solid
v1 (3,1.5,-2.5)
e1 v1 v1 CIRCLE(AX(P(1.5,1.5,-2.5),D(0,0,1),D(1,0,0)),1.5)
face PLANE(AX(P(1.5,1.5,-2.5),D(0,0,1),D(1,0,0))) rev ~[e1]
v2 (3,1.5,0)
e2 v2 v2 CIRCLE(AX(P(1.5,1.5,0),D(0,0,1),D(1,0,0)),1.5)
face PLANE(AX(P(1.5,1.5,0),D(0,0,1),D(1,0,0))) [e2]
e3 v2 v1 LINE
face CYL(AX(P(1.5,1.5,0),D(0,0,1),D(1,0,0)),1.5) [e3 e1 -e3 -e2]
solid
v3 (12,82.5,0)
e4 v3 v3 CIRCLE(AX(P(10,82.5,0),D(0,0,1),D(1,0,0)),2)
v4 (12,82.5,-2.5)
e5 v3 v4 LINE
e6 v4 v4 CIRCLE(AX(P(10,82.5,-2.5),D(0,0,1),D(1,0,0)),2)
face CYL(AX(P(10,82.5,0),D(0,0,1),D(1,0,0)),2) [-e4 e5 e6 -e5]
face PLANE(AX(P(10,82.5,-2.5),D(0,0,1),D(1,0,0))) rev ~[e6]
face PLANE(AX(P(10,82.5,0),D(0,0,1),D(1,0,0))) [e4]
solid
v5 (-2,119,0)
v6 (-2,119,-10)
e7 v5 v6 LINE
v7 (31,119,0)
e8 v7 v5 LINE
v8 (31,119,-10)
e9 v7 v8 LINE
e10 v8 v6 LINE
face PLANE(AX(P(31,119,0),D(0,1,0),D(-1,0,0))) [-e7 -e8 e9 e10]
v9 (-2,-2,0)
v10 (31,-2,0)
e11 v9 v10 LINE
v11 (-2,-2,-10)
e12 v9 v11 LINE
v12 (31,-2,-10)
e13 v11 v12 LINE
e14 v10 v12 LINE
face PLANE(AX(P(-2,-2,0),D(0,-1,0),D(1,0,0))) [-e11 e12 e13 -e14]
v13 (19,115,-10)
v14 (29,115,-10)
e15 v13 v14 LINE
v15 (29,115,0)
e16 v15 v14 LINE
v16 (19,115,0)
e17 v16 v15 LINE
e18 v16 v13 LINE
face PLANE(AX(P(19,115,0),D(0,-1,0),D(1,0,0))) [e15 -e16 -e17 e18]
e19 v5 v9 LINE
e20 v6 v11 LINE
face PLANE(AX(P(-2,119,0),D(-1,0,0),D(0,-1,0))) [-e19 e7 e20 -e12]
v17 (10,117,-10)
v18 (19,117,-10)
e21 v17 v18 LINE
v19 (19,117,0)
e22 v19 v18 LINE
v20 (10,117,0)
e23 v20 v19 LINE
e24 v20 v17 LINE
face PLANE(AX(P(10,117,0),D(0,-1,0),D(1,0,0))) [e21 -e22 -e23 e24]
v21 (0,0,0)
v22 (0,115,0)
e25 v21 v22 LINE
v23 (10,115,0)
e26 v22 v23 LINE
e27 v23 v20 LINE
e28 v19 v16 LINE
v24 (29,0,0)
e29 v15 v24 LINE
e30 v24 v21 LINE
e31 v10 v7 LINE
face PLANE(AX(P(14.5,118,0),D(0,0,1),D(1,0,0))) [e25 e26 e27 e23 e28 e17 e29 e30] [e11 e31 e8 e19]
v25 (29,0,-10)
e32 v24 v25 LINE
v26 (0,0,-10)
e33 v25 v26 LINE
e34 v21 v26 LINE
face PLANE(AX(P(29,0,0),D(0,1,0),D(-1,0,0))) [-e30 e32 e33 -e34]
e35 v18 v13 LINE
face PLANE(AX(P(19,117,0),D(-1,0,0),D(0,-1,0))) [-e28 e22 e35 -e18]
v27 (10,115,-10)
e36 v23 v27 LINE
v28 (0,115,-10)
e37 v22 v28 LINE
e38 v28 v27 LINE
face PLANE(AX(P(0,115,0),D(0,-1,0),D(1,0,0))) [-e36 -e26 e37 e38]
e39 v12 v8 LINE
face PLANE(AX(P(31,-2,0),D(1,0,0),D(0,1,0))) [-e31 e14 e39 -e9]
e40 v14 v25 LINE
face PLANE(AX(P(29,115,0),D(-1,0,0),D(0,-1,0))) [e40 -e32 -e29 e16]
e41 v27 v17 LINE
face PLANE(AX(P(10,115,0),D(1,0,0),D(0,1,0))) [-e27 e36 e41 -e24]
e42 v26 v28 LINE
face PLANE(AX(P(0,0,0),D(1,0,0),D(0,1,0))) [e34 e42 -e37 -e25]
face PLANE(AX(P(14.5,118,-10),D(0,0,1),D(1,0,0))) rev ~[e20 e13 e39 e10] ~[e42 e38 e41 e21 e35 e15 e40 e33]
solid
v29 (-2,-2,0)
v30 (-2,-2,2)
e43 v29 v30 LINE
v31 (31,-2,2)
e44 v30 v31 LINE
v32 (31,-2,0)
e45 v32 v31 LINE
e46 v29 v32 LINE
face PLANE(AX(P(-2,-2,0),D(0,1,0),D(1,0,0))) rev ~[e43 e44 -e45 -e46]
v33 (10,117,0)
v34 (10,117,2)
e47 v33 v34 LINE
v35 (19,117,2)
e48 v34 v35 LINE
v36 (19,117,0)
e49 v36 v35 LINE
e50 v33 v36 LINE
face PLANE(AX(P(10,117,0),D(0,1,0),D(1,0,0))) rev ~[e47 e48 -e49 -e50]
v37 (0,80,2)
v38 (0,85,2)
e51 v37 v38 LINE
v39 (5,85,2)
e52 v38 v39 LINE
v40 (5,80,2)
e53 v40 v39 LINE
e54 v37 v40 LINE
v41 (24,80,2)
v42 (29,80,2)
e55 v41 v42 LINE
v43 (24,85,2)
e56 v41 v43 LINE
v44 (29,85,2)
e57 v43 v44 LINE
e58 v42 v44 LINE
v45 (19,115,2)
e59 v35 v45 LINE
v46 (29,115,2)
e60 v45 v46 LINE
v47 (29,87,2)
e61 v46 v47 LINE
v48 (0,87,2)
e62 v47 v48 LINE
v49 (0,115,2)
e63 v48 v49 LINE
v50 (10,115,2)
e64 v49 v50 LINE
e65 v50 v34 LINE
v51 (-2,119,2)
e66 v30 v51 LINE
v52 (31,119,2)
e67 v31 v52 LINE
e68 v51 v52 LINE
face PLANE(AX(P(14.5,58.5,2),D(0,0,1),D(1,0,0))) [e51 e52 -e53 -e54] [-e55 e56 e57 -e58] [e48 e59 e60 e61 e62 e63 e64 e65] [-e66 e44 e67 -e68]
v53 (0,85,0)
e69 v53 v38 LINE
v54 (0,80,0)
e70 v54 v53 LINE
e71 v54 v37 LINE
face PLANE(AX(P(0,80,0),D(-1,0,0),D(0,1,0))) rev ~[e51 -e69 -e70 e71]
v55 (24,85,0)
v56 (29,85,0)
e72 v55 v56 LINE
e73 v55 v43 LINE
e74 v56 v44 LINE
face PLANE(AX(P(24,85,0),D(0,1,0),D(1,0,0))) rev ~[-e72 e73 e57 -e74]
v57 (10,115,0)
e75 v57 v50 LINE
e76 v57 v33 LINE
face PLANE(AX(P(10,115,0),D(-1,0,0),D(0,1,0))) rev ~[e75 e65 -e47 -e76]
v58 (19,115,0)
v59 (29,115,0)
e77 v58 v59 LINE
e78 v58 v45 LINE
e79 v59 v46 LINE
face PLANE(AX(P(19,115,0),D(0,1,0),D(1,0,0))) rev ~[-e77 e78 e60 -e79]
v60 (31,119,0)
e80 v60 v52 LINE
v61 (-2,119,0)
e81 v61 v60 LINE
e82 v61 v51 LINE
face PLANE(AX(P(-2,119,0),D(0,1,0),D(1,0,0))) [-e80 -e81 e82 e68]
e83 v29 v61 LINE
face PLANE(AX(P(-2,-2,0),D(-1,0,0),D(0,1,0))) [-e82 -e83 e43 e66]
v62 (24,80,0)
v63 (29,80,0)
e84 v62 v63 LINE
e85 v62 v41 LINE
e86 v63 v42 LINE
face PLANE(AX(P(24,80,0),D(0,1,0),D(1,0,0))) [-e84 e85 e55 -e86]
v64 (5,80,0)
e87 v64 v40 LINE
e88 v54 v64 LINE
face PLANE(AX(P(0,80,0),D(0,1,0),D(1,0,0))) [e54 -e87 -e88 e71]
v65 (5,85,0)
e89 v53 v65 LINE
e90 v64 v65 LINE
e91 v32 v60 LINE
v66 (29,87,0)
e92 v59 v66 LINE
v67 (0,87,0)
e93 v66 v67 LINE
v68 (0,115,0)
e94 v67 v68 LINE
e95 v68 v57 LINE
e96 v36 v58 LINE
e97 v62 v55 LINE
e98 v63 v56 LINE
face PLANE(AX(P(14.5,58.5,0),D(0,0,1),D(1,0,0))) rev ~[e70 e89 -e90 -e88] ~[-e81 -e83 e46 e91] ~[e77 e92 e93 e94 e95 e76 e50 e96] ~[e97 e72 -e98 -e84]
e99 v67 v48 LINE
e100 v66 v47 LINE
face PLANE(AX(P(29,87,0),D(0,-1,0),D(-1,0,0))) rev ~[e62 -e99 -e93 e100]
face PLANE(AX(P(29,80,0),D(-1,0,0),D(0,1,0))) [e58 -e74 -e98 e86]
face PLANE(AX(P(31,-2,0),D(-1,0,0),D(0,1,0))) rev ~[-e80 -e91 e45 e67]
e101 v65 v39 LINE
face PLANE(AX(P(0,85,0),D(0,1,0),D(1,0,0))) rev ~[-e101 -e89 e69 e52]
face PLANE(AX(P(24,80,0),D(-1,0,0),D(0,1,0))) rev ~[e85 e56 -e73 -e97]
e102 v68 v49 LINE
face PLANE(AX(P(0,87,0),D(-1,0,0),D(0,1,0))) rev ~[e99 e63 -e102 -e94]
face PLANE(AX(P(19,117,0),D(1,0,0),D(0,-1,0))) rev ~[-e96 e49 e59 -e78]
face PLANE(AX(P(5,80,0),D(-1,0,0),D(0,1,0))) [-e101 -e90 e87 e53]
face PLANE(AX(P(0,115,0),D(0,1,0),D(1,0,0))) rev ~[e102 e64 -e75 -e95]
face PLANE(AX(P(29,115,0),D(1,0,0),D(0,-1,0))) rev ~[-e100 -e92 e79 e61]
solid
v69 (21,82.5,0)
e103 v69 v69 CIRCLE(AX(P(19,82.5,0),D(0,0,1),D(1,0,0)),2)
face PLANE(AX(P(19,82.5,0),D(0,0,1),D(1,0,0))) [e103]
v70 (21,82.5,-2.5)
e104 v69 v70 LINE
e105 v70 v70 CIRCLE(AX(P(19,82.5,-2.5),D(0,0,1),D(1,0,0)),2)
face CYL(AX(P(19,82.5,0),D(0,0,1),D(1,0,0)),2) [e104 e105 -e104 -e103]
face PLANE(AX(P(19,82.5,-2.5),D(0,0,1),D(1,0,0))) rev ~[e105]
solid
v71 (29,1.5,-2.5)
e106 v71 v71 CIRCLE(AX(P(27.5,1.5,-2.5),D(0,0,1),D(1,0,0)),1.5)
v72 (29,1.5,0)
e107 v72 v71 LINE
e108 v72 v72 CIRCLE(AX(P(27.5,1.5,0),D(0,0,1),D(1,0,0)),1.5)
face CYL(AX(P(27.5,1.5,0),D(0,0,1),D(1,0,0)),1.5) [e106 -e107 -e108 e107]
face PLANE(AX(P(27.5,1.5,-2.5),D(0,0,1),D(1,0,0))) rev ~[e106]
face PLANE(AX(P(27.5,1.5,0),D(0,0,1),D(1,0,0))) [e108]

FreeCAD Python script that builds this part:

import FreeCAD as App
import Part
import Sketcher

V = App.Vector


def add_polygon(sketch, points):
    """Adds a closed chain of lines whose ends are joined by coincident constraints."""
    first, n = sketch.GeometryCount, len(points)
    for a, b in zip(points, points[1:] + points[:1]):
        sketch.addGeometry(Part.LineSegment(App.Vector(*a, 0), App.Vector(*b, 0)), False)
    for i in range(n):
        sketch.addConstraint(Sketcher.Constraint("Coincident", first + i, 2, first + (i + 1) % n, 1))

doc = App.newDocument("Part")
body = doc.addObject("PartDesign::Body", "Body")

# Sketch on XY plane
sketch1 = doc.addObject("Sketcher::SketchObject", "Sketch")
body.addObject(sketch1)
sketch1.AttachmentSupport = (doc.XY_Plane, [""])
sketch1.MapMode = "FlatFace"
add_polygon(sketch1, [(-2, 119), (-2, -2), (31, -2), (31, 119)])  # lines 0-3
add_polygon(sketch1, [(10, 117), (19, 117), (19, 115), (29, 115), (29, 0), (0, 0), (0, 115), (10, 115)])  # lines 4-11
sketch1.addConstraint(Sketcher.Constraint("Vertical", 0))
sketch1.addConstraint(Sketcher.Constraint("Horizontal", 1))
sketch1.addConstraint(Sketcher.Constraint("Vertical", 2))
sketch1.addConstraint(Sketcher.Constraint("Horizontal", 3))
sketch1.addConstraint(Sketcher.Constraint("Horizontal", 4))
sketch1.addConstraint(Sketcher.Constraint("Vertical", 5))
sketch1.addConstraint(Sketcher.Constraint("Horizontal", 6))
sketch1.addConstraint(Sketcher.Constraint("Vertical", 7))
sketch1.addConstraint(Sketcher.Constraint("Horizontal", 8))
sketch1.addConstraint(Sketcher.Constraint("Vertical", 9))
sketch1.addConstraint(Sketcher.Constraint("Horizontal", 10))
sketch1.addConstraint(Sketcher.Constraint("Vertical", 11))
sketch1.addConstraint(Sketcher.Constraint("Coincident", 8, 2, -1, 1))
sketch1.addConstraint(Sketcher.Constraint("Horizontal", 6, 2, 9, 2))
sketch1.addConstraint(Sketcher.Constraint("Equal", 6, 10))
sketch1.addConstraint(Sketcher.Constraint("DistanceX", 1, 1, 1, 2, 33.0))
sketch1.addConstraint(Sketcher.Constraint("DistanceX", 4, 1, 4, 2, 9.0))
sketch1.addConstraint(Sketcher.Constraint("DistanceX", 6, 1, 6, 2, 10.0))
sketch1.addConstraint(Sketcher.Constraint("DistanceY", 0, 2, 0, 1, 121.0))
sketch1.addConstraint(Sketcher.Constraint("DistanceY", 5, 2, 5, 1, 2.0))
sketch1.addConstraint(Sketcher.Constraint("DistanceY", 7, 2, 7, 1, 115.0))
sketch1.addConstraint(Sketcher.Constraint("DistanceX", 0, 2, -1, 1, 2.0))
sketch1.addConstraint(Sketcher.Constraint("DistanceY", 0, 2, -1, 1, 2.0))
pad1 = doc.addObject("PartDesign::Pad", "Pad")
body.addObject(pad1)
pad1.Profile = sketch1
pad1.Length = 10
pad1.Reversed = True
body2 = doc.addObject("PartDesign::Body", "Body001")

# Sketch on XY plane
sketch2 = doc.addObject("Sketcher::SketchObject", "Sketch001")
body2.addObject(sketch2)
sketch2.AttachmentSupport = (doc.getObject("XY_Plane001"), [""])
sketch2.MapMode = "FlatFace"
sketch2.addGeometry(Part.Circle(V(1.5, 1.5, 0), V(0, 0, 1), 1.5), False)
sketch2.addConstraint(Sketcher.Constraint("Diameter", 0, 3.0))
sketch2.addConstraint(Sketcher.Constraint("DistanceX", -1, 1, 0, 3, 1.5))
sketch2.addConstraint(Sketcher.Constraint("DistanceY", -1, 1, 0, 3, 1.5))
pad2 = doc.addObject("PartDesign::Pad", "Pad001")
body2.addObject(pad2)
pad2.Profile = sketch2
pad2.Length = 2.5
pad2.Reversed = True
body3 = doc.addObject("PartDesign::Body", "Body002")

# Sketch on XY plane
sketch3 = doc.addObject("Sketcher::SketchObject", "Sketch002")
body3.addObject(sketch3)
sketch3.AttachmentSupport = (doc.getObject("XY_Plane002"), [""])
sketch3.MapMode = "FlatFace"
sketch3.addGeometry(Part.Circle(V(27.5, 1.5, 0), V(0, 0, 1), 1.5), False)
sketch3.addConstraint(Sketcher.Constraint("Diameter", 0, 3.0))
sketch3.addConstraint(Sketcher.Constraint("DistanceX", -1, 1, 0, 3, 27.5))
sketch3.addConstraint(Sketcher.Constraint("DistanceY", -1, 1, 0, 3, 1.5))
pad3 = doc.addObject("PartDesign::Pad", "Pad002")
body3.addObject(pad3)
pad3.Profile = sketch3
pad3.Length = 2.5
pad3.Reversed = True
body4 = doc.addObject("PartDesign::Body", "Body003")

# Sketch on XY plane
sketch4 = doc.addObject("Sketcher::SketchObject", "Sketch003")
body4.addObject(sketch4)
sketch4.AttachmentSupport = (doc.getObject("XY_Plane003"), [""])
sketch4.MapMode = "FlatFace"
sketch4.addGeometry(Part.Circle(V(10, 82.5, 0), V(0, 0, 1), 2), False)
sketch4.addConstraint(Sketcher.Constraint("Diameter", 0, 4.0))
sketch4.addConstraint(Sketcher.Constraint("DistanceX", -1, 1, 0, 3, 10.0))
sketch4.addConstraint(Sketcher.Constraint("DistanceY", -1, 1, 0, 3, 82.5))
pad4 = doc.addObject("PartDesign::Pad", "Pad003")
body4.addObject(pad4)
pad4.Profile = sketch4
pad4.Length = 2.5
pad4.Reversed = True
body5 = doc.addObject("PartDesign::Body", "Body004")

# Sketch on XY plane
sketch5 = doc.addObject("Sketcher::SketchObject", "Sketch004")
body5.addObject(sketch5)
sketch5.AttachmentSupport = (doc.getObject("XY_Plane004"), [""])
sketch5.MapMode = "FlatFace"
sketch5.addGeometry(Part.Circle(V(19, 82.5, 0), V(0, 0, 1), 2), False)
sketch5.addConstraint(Sketcher.Constraint("Diameter", 0, 4.0))
sketch5.addConstraint(Sketcher.Constraint("DistanceX", -1, 1, 0, 3, 19.0))
sketch5.addConstraint(Sketcher.Constraint("DistanceY", -1, 1, 0, 3, 82.5))
pad5 = doc.addObject("PartDesign::Pad", "Pad004")
body5.addObject(pad5)
pad5.Profile = sketch5
pad5.Length = 2.5
pad5.Reversed = True
body6 = doc.addObject("PartDesign::Body", "Body005")

# Sketch on XY plane
sketch6 = doc.addObject("Sketcher::SketchObject", "Sketch005")
body6.addObject(sketch6)
sketch6.AttachmentSupport = (doc.getObject("XY_Plane005"), [""])
sketch6.MapMode = "FlatFace"
add_polygon(sketch6, [(-2, 119), (-2, -2), (31, -2), (31, 119)])  # lines 0-3
add_polygon(sketch6, [(5, 80), (0, 80), (0, 85), (5, 85)])  # lines 4-7
add_polygon(sketch6, [(29, 80), (24, 80), (24, 85), (29, 85)])  # lines 8-11
add_polygon(sketch6, [(0, 87), (0, 115), (10, 115), (10, 117), (19, 117), (19, 115), (29, 115), (29, 87)])  # lines 12-19
sketch6.addConstraint(Sketcher.Constraint("Vertical", 0))
sketch6.addConstraint(Sketcher.Constraint("Horizontal", 1))
sketch6.addConstraint(Sketcher.Constraint("Vertical", 2))
sketch6.addConstraint(Sketcher.Constraint("Horizontal", 3))
sketch6.addConstraint(Sketcher.Constraint("Horizontal", 4))
sketch6.addConstraint(Sketcher.Constraint("Vertical", 5))
sketch6.addConstraint(Sketcher.Constraint("Horizontal", 6))
sketch6.addConstraint(Sketcher.Constraint("Vertical", 7))
sketch6.addConstraint(Sketcher.Constraint("Horizontal", 8))
sketch6.addConstraint(Sketcher.Constraint("Vertical", 9))
sketch6.addConstraint(Sketcher.Constraint("Horizontal", 10))
sketch6.addConstraint(Sketcher.Constraint("Vertical", 11))
sketch6.addConstraint(Sketcher.Constraint("Vertical", 12))
sketch6.addConstraint(Sketcher.Constraint("Horizontal", 13))
sketch6.addConstraint(Sketcher.Constraint("Vertical", 14))
sketch6.addConstraint(Sketcher.Constraint("Horizontal", 15))
sketch6.addConstraint(Sketcher.Constraint("Vertical", 16))
sketch6.addConstraint(Sketcher.Constraint("Horizontal", 17))
sketch6.addConstraint(Sketcher.Constraint("Vertical", 18))
sketch6.addConstraint(Sketcher.Constraint("Horizontal", 19))
sketch6.addConstraint(Sketcher.Constraint("PointOnObject", 4, 2, -2))
sketch6.addConstraint(Sketcher.Constraint("PointOnObject", 12, 2, -2))
sketch6.addConstraint(Sketcher.Constraint("Horizontal", 7, 2, 8, 2))
sketch6.addConstraint(Sketcher.Constraint("Horizontal", 6, 2, 9, 2))
sketch6.addConstraint(Sketcher.Constraint("Horizontal", 13, 2, 16, 2))
sketch6.addConstraint(Sketcher.Constraint("Vertical", 11, 2, 17, 2))
sketch6.addConstraint(Sketcher.Constraint("Equal", 6, 8))
sketch6.addConstraint(Sketcher.Constraint("Equal", 13, 17))
sketch6.addConstraint(Sketcher.Constraint("Equal", 10, 5))
sketch6.addConstraint(Sketcher.Constraint("DistanceX", 1, 1, 1, 2, 33.0))
sketch6.addConstraint(Sketcher.Constraint("DistanceX", 4, 2, 4, 1, 5.0))
sketch6.addConstraint(Sketcher.Constraint("DistanceX", 13, 1, 13, 2, 10.0))
sketch6.addConstraint(Sketcher.Constraint("DistanceX", 15, 1, 15, 2, 9.0))
sketch6.addConstraint(Sketcher.Constraint("DistanceY", 0, 2, 0, 1, 121.0))
sketch6.addConstraint(Sketcher.Constraint("DistanceY", 12, 1, 12, 2, 28.0))
sketch6.addConstraint(Sketcher.Constraint("DistanceY", 14, 1, 14, 2, 2.0))
sketch6.addConstraint(Sketcher.Constraint("DistanceX", 0, 2, -1, 1, 2.0))
sketch6.addConstraint(Sketcher.Constraint("DistanceY", 0, 2, -1, 1, 2.0))
sketch6.addConstraint(Sketcher.Constraint("DistanceY", -1, 1, 4, 2, 80.0))
sketch6.addConstraint(Sketcher.Constraint("DistanceY", -1, 1, 12, 2, 115.0))
pad6 = doc.addObject("PartDesign::Pad", "Pad005")
body6.addObject(pad6)
pad6.Profile = sketch6
pad6.Length = 2

doc.recompute()
